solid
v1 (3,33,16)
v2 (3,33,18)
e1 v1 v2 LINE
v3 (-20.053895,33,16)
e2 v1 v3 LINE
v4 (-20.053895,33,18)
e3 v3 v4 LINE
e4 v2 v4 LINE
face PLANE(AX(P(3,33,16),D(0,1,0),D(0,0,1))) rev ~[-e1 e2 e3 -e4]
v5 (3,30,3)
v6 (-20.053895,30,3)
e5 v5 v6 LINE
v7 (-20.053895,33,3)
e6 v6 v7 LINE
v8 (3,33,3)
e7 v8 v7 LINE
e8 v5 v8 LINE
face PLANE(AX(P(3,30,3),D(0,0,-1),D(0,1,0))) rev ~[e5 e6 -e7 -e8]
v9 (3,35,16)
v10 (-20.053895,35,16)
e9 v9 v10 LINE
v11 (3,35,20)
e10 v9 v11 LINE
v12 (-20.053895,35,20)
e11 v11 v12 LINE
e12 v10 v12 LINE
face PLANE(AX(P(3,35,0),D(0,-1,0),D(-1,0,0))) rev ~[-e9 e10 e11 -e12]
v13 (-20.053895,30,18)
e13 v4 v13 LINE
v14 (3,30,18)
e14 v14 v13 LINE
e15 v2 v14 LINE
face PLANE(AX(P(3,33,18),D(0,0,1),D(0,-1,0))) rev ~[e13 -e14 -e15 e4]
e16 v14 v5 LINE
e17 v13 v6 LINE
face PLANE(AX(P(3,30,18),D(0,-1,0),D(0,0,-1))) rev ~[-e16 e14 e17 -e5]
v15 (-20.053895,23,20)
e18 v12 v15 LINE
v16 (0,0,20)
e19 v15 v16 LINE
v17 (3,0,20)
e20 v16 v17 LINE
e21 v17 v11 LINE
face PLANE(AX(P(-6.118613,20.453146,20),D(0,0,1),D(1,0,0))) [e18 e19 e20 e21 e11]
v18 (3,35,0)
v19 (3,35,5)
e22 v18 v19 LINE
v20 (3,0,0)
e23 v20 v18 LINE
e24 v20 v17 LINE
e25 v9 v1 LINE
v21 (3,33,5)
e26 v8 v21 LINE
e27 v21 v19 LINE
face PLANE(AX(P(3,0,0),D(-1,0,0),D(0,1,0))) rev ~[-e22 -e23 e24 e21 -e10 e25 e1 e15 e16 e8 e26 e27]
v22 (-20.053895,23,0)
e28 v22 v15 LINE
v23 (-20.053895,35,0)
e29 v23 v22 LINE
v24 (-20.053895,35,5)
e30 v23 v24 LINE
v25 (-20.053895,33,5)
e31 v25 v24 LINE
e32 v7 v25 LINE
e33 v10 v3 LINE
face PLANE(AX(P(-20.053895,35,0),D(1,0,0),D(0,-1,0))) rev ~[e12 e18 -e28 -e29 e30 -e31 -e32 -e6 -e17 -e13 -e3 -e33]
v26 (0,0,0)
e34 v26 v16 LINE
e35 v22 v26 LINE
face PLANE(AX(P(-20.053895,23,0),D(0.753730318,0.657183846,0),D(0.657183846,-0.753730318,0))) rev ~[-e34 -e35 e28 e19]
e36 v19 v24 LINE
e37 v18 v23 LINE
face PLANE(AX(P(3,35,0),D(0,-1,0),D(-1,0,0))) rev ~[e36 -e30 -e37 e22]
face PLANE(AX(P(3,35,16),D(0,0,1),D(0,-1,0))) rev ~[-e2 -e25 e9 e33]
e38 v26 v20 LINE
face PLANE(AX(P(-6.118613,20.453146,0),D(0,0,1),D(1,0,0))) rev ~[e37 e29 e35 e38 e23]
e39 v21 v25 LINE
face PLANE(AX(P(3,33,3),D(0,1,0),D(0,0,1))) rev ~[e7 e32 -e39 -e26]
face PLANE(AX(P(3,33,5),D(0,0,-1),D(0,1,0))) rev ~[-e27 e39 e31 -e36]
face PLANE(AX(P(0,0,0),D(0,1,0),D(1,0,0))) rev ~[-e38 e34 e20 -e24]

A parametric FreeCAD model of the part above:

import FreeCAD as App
import Part
import Sketcher
from FreeCAD import Vector
Q = App.Units.Quantity


def add_polygon(sketch, points):
    """Adds a closed chain of lines whose ends are joined by coincident constraints."""
    first, n = sketch.GeometryCount, len(points)
    for a, b in zip(points, points[1:] + points[:1]):
        sketch.addGeometry(Part.LineSegment(App.Vector(*a, 0), App.Vector(*b, 0)), False)
    for i in range(n):
        sketch.addConstraint(Sketcher.Constraint("Coincident", first + i, 2, first + (i + 1) % n, 1))

doc = App.newDocument("Part")
body = doc.addObject("PartDesign::Body", "Body")

# Sketch on XY plane
sketch1 = doc.addObject("Sketcher::SketchObject", "Sketch")
body.addObject(sketch1)
sketch1.AttachmentSupport = (doc.XY_Plane, [""])
sketch1.MapMode = "FlatFace"
add_polygon(sketch1, [(-20.1, 23), (0, 0), (3, 0), (3, 35), (-20.1, 35)])  # lines 0-4
sketch1.addConstraint(Sketcher.Constraint("Horizontal", 1))
sketch1.addConstraint(Sketcher.Constraint("Vertical", 2))
sketch1.addConstraint(Sketcher.Constraint("Horizontal", 3))
sketch1.addConstraint(Sketcher.Constraint("Vertical", 4))
sketch1.addConstraint(Sketcher.Constraint("Coincident", 0, 2, -1, 1))
sketch1.addConstraint(Sketcher.Constraint("DistanceX", 1, 1, 1, 2, Q("3 mm")))
sketch1.addConstraint(Sketcher.Constraint("DistanceY", 2, 1, 2, 2, Q("35 mm")))
sketch1.addConstraint(Sketcher.Constraint("DistanceY", 4, 2, 4, 1, Q("12 mm")))
sketch1.addConstraint(Sketcher.Constraint("DistanceX", 3, 2, 3, 1, Q("23.053895 mm")))
pad1 = doc.addObject("PartDesign::Pad", "Pad")
body.addObject(pad1)
pad1.Profile = sketch1
pad1.Length = 20

# Sketch on YZ plane
sketch2 = doc.addObject("Sketcher::SketchObject", "Sketch001")
body.addObject(sketch2)
sketch2.AttachmentSupport = (doc.YZ_Plane, [""])
sketch2.MapMode = "FlatFace"
sketch2.AttachmentOffset = App.Placement(Vector(0, 0, 3), App.Rotation())
add_polygon(sketch2, [(33, 5), (35, 5), (35, 16), (33, 16), (33, 18), (30, 18), (30, 3), (33, 3)])  # lines 0-7
sketch2.addConstraint(Sketcher.Constraint("Horizontal", 0))
sketch2.addConstraint(Sketcher.Constraint("Vertical", 1))
sketch2.addConstraint(Sketcher.Constraint("Horizontal", 2))
sketch2.addConstraint(Sketcher.Constraint("Vertical", 3))
sketch2.addConstraint(Sketcher.Constraint("Horizontal", 4))
sketch2.addConstraint(Sketcher.Constraint("Vertical", 5))
sketch2.addConstraint(Sketcher.Constraint("Horizontal", 6))
sketch2.addConstraint(Sketcher.Constraint("Vertical", 7))
sketch2.addConstraint(Sketcher.Constraint("Vertical", 3, 2, 6, 2))
sketch2.addConstraint(Sketcher.Constraint("Equal", 2, 3))
sketch2.addConstraint(Sketcher.Constraint("Equal", 3, 7))
sketch2.addConstraint(Sketcher.Constraint("DistanceX", 0, 1, 0, 2, Q("2 mm")))
sketch2.addConstraint(Sketcher.Constraint("DistanceX", 4, 2, 4, 1, Q("3 mm")))
sketch2.addConstraint(Sketcher.Constraint("DistanceY", 1, 1, 1, 2, Q("11 mm")))
sketch2.addConstraint(Sketcher.Constraint("DistanceX", -1, 1, 0, 2, Q("35 mm")))
sketch2.addConstraint(Sketcher.Constraint("DistanceY", -1, 1, 0, 2, Q("5 mm")))
pocket1 = doc.addObject("PartDesign::Pocket", "Pocket")
body.addObject(pocket1)
pocket1.Profile = sketch2
pocket1.Type = "ThroughAll"

doc.recompute()
